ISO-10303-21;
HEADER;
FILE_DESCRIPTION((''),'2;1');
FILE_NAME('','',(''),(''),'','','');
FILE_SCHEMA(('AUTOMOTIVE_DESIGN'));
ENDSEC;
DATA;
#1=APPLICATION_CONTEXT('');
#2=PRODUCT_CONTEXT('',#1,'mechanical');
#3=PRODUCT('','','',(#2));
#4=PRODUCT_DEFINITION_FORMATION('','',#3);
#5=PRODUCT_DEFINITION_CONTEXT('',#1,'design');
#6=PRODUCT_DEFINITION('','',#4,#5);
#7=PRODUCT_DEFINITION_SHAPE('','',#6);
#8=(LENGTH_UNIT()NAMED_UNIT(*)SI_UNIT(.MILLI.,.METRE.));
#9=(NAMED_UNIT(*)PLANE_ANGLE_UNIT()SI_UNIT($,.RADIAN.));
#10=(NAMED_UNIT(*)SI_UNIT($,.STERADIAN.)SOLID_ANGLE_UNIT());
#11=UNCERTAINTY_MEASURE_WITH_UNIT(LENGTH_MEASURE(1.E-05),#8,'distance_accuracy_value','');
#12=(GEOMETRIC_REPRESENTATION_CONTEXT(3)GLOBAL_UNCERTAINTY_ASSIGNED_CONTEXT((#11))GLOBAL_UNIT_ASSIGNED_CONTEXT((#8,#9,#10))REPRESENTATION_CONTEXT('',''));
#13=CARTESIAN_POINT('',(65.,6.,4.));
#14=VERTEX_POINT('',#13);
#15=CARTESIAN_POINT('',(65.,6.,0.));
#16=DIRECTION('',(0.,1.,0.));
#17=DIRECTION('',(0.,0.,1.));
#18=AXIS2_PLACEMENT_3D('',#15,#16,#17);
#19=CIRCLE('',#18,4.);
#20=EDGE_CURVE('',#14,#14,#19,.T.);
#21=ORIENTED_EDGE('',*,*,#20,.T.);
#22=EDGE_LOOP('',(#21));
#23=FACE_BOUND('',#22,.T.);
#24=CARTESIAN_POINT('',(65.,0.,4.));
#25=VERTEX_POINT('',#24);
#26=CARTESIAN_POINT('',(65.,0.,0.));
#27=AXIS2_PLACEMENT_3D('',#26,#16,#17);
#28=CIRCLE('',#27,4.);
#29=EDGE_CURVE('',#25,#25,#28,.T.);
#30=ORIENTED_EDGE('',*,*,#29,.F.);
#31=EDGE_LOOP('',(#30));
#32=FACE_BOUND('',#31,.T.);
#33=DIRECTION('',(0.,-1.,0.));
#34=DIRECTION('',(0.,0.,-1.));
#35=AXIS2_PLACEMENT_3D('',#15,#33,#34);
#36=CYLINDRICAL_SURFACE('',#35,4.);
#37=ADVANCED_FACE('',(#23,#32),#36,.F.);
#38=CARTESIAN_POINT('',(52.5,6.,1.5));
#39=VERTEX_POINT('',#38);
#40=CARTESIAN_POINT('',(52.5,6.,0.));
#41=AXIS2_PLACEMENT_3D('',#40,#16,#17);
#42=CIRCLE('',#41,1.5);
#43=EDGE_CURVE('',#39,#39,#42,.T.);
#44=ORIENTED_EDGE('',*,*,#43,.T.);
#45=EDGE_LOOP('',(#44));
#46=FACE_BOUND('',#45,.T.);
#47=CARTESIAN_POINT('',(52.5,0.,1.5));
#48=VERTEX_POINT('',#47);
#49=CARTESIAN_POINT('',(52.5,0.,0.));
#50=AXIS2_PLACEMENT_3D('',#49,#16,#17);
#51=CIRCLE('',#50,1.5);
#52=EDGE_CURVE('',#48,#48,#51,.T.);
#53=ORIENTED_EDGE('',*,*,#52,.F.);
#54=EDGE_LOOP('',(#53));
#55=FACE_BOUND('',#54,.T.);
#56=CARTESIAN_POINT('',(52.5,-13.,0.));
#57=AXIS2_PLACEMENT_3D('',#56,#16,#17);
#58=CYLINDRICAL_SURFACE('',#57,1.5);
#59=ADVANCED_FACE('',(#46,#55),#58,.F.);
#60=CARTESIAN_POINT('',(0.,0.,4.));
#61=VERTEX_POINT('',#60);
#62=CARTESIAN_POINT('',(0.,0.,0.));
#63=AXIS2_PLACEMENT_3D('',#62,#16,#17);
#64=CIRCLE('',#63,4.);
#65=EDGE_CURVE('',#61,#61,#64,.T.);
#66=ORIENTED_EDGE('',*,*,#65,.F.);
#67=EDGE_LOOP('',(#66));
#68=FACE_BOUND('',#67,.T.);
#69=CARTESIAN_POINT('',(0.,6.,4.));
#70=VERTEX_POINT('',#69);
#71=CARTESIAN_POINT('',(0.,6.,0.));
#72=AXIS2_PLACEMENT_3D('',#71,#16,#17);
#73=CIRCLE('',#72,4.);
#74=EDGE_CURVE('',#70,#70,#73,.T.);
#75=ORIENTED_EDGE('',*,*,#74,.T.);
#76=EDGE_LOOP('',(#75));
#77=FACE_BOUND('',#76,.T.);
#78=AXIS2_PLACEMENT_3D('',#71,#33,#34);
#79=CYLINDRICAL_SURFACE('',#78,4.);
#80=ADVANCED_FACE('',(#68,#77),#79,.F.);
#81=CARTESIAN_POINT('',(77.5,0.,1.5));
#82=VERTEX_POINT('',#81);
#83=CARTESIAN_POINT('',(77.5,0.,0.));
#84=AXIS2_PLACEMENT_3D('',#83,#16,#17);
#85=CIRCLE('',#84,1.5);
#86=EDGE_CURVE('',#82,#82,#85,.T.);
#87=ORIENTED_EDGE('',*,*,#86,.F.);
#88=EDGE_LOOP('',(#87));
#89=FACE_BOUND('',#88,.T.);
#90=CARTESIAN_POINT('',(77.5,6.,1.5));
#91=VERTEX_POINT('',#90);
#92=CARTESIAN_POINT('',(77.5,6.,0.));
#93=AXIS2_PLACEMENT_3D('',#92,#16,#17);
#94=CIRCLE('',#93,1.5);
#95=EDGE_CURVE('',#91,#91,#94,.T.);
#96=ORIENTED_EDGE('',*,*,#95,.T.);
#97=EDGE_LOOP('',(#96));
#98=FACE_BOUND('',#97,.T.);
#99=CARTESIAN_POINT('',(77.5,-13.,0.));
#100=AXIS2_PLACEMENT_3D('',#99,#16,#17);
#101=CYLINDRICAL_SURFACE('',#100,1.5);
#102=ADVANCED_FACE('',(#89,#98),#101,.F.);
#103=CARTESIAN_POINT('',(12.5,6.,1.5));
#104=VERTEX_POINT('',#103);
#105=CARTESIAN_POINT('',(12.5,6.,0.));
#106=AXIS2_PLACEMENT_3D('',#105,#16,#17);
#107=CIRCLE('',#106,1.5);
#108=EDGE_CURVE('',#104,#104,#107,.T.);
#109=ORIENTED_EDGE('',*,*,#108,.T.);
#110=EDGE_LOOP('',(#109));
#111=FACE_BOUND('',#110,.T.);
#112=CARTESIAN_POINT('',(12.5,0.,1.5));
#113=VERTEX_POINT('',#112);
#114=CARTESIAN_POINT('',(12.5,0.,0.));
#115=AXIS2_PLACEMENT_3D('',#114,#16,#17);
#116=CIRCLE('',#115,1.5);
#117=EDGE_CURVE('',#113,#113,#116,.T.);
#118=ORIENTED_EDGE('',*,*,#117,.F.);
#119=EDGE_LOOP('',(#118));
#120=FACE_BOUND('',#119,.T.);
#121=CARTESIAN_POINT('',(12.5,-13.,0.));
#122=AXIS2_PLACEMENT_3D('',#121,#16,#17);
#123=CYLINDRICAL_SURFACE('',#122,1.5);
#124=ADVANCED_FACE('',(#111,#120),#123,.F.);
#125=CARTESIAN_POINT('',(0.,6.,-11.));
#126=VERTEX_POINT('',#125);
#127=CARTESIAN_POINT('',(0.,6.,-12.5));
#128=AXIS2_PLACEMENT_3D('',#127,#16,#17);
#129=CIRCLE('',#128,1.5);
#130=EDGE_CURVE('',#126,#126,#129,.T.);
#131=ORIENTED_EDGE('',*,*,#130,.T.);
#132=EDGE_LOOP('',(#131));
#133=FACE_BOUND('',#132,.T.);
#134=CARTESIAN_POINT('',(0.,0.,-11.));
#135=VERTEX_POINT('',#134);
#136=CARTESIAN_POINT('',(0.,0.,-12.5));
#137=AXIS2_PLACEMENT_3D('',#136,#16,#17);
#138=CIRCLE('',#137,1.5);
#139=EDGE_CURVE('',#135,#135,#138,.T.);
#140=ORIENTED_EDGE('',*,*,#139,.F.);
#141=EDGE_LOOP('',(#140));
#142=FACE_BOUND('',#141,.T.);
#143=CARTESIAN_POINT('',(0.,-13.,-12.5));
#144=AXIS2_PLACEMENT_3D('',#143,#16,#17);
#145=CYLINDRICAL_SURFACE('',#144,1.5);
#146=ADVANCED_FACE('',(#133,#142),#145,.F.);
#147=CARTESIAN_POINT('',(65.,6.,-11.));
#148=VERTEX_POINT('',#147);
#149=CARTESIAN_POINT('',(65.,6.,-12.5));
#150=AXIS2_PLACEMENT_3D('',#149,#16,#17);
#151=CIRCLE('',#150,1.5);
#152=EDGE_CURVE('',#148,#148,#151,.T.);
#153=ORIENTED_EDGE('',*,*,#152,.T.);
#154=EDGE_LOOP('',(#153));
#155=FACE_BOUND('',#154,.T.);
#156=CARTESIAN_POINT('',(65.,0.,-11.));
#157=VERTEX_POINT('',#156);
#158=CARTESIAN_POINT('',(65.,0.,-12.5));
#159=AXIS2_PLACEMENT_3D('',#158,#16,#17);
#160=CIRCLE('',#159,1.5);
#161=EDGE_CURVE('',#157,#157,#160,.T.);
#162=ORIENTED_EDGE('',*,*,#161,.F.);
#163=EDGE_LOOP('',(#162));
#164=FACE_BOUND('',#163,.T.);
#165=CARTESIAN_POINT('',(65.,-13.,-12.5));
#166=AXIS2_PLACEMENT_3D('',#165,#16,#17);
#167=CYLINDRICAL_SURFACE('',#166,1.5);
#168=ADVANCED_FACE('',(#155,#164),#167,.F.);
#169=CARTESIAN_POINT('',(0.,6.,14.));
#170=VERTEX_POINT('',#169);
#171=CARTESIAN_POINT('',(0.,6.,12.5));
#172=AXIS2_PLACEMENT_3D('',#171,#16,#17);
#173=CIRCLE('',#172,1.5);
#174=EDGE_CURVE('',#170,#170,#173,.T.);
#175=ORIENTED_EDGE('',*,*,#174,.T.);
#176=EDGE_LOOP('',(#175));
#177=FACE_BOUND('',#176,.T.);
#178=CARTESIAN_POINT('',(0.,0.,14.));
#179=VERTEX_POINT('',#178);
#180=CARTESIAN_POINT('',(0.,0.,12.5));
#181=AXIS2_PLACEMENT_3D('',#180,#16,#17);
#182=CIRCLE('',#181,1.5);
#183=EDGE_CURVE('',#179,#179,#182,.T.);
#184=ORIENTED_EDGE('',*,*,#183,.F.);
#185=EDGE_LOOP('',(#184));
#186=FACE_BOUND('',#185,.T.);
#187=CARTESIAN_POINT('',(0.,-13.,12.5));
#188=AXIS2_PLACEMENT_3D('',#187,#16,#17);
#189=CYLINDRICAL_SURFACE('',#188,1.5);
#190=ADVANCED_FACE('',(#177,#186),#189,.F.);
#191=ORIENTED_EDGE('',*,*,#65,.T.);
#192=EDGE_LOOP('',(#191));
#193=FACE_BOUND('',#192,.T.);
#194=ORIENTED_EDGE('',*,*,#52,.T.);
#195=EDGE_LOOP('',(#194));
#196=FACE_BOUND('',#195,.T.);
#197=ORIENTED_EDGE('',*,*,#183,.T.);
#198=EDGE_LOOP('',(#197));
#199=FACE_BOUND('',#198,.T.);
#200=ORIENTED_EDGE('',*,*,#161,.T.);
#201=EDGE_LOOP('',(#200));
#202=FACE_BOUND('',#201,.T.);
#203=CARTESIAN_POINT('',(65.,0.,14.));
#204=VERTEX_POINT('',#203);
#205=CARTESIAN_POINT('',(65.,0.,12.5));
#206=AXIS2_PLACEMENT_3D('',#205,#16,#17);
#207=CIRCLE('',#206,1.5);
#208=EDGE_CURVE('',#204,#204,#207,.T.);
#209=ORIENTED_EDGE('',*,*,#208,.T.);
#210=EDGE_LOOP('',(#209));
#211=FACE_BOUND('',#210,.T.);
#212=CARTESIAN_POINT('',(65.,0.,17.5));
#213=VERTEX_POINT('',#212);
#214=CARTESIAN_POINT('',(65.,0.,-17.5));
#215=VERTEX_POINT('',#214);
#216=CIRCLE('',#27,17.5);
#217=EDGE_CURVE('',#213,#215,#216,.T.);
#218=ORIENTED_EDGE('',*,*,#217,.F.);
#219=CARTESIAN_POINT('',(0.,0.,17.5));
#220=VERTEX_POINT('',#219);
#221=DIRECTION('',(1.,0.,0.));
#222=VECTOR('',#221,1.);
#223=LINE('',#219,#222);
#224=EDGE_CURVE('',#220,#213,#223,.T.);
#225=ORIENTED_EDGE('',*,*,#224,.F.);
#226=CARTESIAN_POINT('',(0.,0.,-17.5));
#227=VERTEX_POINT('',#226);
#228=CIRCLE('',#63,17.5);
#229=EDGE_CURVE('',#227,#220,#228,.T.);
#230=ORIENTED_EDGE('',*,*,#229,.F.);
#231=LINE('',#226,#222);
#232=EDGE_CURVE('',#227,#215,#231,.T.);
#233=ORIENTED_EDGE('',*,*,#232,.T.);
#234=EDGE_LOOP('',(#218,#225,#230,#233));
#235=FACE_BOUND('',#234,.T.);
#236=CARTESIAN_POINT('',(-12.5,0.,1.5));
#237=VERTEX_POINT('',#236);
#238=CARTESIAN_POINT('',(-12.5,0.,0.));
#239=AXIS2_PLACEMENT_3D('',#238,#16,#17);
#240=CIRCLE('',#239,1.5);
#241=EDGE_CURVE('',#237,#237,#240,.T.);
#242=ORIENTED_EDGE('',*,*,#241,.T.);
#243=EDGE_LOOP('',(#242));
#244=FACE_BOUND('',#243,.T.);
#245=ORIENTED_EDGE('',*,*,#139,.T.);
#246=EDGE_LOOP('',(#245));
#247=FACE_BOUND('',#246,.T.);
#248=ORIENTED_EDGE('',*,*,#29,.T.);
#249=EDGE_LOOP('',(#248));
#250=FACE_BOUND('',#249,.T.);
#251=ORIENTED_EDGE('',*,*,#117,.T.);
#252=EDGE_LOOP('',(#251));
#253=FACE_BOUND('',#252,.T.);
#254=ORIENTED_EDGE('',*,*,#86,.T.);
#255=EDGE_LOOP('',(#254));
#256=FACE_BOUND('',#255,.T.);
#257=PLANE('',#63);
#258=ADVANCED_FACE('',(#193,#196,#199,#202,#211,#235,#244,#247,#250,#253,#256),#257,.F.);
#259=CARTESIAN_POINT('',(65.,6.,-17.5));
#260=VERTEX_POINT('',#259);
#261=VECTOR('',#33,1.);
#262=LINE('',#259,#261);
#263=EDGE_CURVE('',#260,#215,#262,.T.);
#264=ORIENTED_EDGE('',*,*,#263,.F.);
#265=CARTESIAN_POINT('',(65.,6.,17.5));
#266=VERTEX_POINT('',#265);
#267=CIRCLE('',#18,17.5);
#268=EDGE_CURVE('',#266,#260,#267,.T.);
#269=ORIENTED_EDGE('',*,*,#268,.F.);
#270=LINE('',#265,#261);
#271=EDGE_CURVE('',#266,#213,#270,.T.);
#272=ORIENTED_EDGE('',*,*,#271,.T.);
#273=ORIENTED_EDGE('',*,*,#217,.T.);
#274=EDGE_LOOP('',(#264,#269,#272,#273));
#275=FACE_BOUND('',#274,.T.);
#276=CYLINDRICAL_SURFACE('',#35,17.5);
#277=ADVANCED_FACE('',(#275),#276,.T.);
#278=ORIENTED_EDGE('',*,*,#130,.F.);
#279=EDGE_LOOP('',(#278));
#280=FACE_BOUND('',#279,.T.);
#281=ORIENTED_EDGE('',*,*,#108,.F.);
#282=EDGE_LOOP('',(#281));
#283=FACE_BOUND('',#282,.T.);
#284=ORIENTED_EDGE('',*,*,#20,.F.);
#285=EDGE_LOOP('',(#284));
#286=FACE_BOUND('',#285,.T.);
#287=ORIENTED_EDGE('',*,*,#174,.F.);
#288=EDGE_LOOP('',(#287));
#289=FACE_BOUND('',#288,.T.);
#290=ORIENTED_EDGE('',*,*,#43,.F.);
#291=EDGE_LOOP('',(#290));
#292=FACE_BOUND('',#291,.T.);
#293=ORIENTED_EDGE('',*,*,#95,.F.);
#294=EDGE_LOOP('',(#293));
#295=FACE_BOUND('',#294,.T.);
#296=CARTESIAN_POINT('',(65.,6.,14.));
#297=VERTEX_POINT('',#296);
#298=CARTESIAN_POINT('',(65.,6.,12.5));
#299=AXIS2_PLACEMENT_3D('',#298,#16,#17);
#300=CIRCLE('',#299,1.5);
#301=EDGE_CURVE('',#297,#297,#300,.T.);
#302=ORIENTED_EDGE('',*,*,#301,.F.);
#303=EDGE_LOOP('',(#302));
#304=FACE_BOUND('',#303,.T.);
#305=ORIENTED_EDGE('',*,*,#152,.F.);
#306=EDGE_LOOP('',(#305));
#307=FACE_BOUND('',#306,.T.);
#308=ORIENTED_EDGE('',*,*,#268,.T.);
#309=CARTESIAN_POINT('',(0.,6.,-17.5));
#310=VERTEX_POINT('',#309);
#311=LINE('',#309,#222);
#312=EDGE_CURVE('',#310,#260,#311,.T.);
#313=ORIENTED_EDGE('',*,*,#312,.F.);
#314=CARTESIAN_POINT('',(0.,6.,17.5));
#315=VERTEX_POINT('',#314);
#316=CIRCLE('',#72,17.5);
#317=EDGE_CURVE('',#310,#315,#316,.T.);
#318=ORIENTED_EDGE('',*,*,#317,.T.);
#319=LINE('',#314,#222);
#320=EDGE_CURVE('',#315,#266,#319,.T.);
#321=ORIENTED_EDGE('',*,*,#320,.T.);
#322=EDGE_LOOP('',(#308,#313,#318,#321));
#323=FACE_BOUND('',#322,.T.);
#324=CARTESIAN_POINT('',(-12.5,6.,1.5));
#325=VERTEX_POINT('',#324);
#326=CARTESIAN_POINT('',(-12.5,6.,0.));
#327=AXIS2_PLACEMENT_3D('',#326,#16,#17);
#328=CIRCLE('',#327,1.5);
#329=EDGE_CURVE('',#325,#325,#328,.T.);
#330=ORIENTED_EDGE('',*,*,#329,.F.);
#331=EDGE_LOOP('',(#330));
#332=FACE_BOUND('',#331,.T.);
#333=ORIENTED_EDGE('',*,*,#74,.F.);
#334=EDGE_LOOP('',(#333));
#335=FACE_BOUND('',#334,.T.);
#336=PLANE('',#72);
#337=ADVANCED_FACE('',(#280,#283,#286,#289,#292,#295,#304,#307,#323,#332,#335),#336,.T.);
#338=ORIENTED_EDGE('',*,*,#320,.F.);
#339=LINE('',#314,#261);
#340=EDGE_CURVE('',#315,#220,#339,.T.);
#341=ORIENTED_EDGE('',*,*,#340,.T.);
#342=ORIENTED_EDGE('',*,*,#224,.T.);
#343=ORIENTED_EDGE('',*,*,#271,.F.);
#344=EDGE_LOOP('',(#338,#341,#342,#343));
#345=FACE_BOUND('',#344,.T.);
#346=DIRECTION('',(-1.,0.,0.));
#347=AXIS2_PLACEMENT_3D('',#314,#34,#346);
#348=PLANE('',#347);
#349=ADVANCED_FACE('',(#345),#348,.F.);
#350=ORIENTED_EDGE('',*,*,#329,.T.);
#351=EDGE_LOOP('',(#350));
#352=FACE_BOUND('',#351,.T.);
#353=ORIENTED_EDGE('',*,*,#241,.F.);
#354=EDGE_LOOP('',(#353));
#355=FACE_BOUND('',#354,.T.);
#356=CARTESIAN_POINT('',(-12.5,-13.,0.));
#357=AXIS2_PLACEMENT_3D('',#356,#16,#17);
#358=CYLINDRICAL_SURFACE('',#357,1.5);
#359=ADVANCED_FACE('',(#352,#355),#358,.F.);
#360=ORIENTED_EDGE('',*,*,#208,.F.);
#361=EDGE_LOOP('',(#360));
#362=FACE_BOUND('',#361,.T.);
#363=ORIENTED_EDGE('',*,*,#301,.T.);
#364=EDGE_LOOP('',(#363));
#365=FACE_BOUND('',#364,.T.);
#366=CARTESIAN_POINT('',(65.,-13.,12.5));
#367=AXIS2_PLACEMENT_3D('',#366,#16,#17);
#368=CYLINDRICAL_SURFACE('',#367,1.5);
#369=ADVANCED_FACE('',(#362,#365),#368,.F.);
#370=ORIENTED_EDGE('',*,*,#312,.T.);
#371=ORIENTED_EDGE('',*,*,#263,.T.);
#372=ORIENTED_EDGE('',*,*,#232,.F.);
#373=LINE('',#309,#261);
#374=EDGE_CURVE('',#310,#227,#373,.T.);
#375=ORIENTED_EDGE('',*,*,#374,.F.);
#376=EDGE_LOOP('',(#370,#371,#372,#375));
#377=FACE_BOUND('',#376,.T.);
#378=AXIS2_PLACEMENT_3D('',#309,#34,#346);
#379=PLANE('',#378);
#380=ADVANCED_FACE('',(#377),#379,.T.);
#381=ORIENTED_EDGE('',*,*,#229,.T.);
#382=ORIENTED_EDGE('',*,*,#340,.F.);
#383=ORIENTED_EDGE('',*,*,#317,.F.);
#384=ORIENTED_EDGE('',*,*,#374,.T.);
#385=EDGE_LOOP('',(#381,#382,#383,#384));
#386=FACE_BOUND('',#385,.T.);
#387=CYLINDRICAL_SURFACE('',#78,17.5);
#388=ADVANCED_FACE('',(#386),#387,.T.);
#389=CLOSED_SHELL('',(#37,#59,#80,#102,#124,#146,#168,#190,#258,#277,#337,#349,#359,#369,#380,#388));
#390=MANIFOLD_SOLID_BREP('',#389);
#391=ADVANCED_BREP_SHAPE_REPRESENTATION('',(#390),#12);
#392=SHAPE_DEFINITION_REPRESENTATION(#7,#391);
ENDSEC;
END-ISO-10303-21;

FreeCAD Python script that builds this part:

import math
import FreeCAD as App
import Part
import Sketcher
Q = App.Units.Quantity

doc = App.newDocument("Part")
params = doc.addObject("Spreadsheet::Sheet", "Params")
for row, (alias, value) in enumerate([
    ("sketch1_diameter", "8 mm"),
    ("sketch1_radius", "17.5 mm"),
    ("sketch1_width", "65 mm"),
    ("pad1_length", "6 mm"),
    ("sketch2_diameter", "3 mm"),
    ("pocket1_length", "19 mm"),
    ("sketch3_diameter", "3 mm"),
    ("pocket2_length", "19 mm"),
], start=1):
    params.set(f"A{row}", alias)
    params.set(f"B{row}", "=" + value)
    params.setAlias(f"B{row}", alias)

body = doc.addObject("PartDesign::Body", "Body")

sketch1 = body.newObject("Sketcher::SketchObject", "Sketch")
sketch1.AttachmentSupport = (doc.getObject("XZ_Plane"), [""])
sketch1.MapMode = "FlatFace"
sketch1.addGeometry([
    Part.LineSegment(App.Vector(65, -17.5, 0), App.Vector(0, -17.5, 0)),
    Part.ArcOfCircle(Part.Circle(App.Vector(0, 0, 0), App.Vector(0, 0, 1), 17.5), math.radians(90), math.radians(270)),
    Part.LineSegment(App.Vector(0, 17.5, 0), App.Vector(65, 17.5, 0)),
    Part.ArcOfCircle(Part.Circle(App.Vector(65, 0, 0), App.Vector(0, 0, 1), 17.5), math.radians(-90), math.radians(90)),
    Part.Circle(App.Vector(65, 0, 0), App.Vector(0, 0, 1), 4),
    Part.Circle(App.Vector(0, 0, 0), App.Vector(0, 0, 1), 4),
], False)
sketch1.addConstraint([
    Sketcher.Constraint("Tangent", 0, 2, 1, 2),
    Sketcher.Constraint("Tangent", 1, 1, 2, 1),
    Sketcher.Constraint("Tangent", 2, 2, 3, 2),
    Sketcher.Constraint("Tangent", 3, 1, 0, 1),
    Sketcher.Constraint("Horizontal", 0),
    Sketcher.Constraint("Horizontal", 2),
    Sketcher.Constraint("Coincident", 1, 3, -1, 1),
    Sketcher.Constraint("Coincident", 5, 3, -1, 1),
    Sketcher.Constraint("Coincident", 4, 3, 3, 3),
    Sketcher.Constraint("Equal", 4, 5),
    Sketcher.Constraint("Diameter", 4, Q("8 mm")),
    Sketcher.Constraint("Radius", 1, Q("17.5 mm")),
    Sketcher.Constraint("DistanceX", 0, 2, 0, 1, Q("65 mm")),
])
sketch1.setExpression("Constraints[10]", "Params.sketch1_diameter")
sketch1.setExpression("Constraints[11]", "Params.sketch1_radius")
sketch1.setExpression("Constraints[12]", "Params.sketch1_width")
pad1 = body.newObject("PartDesign::Pad", "Pad")
pad1.Profile = sketch1
pad1.setExpression("Length", "Params.pad1_length")
pad1.Reversed = True

sketch2 = body.newObject("Sketcher::SketchObject", "Sketch001")
sketch2.AttachmentSupport = (doc.getObject("XZ_Plane"), [""])
sketch2.MapMode = "FlatFace"
sketch2.AttachmentOffset = App.Placement(App.Vector(0, 0, -6), App.Rotation())
sketch2.addGeometry([
    Part.Circle(App.Vector(0, -12.5, 0), App.Vector(0, 0, 1), 1.5),
    Part.Circle(App.Vector(12.5, 0, 0), App.Vector(0, 0, 1), 1.5),
    Part.Circle(App.Vector(0, 12.5, 0), App.Vector(0, 0, 1), 1.5),
    Part.Circle(App.Vector(-12.5, 0, 0), App.Vector(0, 0, 1), 1.5),
], False)
sketch2.addConstraint([
    Sketcher.Constraint("Equal", 0, 1),
    Sketcher.Constraint("Equal", 1, 2),
    Sketcher.Constraint("Equal", 2, 3),
    Sketcher.Constraint("Symmetric", 0, 3, 2, 3, -1, 1),
    Sketcher.Constraint("Symmetric", 1, 3, 3, 3, -1, 1),
    Sketcher.Constraint("PointOnObject", 0, 3, -2),
    Sketcher.Constraint("PointOnObject", 1, 3, -1),
    Sketcher.Constraint("Diameter", 0, Q("3 mm")),
    Sketcher.Constraint("DistanceY", 0, 3, 2, 3, Q("25 mm")),
    Sketcher.Constraint("DistanceX", 3, 3, 1, 3, Q("25 mm")),
])
sketch2.setExpression("Constraints[7]", "Params.sketch2_diameter")
pocket1 = body.newObject("PartDesign::Pocket", "Pocket")
pocket1.Profile = sketch2
pocket1.setExpression("Length", "Params.pocket1_length")
pocket1.Reversed = True

sketch3 = body.newObject("Sketcher::SketchObject", "Sketch002")
sketch3.AttachmentSupport = (doc.getObject("XZ_Plane"), [""])
sketch3.MapMode = "FlatFace"
sketch3.AttachmentOffset = App.Placement(App.Vector(0, 0, -6), App.Rotation())
sketch3.addGeometry([
    Part.Circle(App.Vector(77.5, 0, 0), App.Vector(0, 0, 1), 1.5),
    Part.Circle(App.Vector(65, 12.5, 0), App.Vector(0, 0, 1), 1.5),
    Part.Circle(App.Vector(52.5, 0, 0), App.Vector(0, 0, 1), 1.5),
    Part.Circle(App.Vector(65, -12.5, 0), App.Vector(0, 0, 1), 1.5),
], False)
sketch3.addConstraint([
    Sketcher.Constraint("Equal", 0, 1),
    Sketcher.Constraint("Equal", 1, 2),
    Sketcher.Constraint("Equal", 2, 3),
    Sketcher.Constraint("Symmetric", 1, 3, 3, 3, -1),
    Sketcher.Constraint("PointOnObject", 0, 3, -1),
    Sketcher.Constraint("PointOnObject", 2, 3, -1),
    Sketcher.Constraint("Diameter", 0, Q("3 mm")),
    Sketcher.Constraint("DistanceX", -1, 1, 1, 3, Q("65 mm")),
    Sketcher.Constraint("DistanceX", 2, 3, 0, 3, Q("25 mm")),
    Sketcher.Constraint("DistanceY", 3, 3, 1, 3, Q("25 mm")),
    Sketcher.Constraint("DistanceX", -1, 1, 0, 3, Q("77.5 mm")),
])
sketch3.setExpression("Constraints[6]", "Params.sketch3_diameter")
pocket2 = body.newObject("PartDesign::Pocket", "Pocket001")
pocket2.Profile = sketch3
pocket2.setExpression("Length", "Params.pocket2_length")
pocket2.Reversed = True

doc.recompute()
